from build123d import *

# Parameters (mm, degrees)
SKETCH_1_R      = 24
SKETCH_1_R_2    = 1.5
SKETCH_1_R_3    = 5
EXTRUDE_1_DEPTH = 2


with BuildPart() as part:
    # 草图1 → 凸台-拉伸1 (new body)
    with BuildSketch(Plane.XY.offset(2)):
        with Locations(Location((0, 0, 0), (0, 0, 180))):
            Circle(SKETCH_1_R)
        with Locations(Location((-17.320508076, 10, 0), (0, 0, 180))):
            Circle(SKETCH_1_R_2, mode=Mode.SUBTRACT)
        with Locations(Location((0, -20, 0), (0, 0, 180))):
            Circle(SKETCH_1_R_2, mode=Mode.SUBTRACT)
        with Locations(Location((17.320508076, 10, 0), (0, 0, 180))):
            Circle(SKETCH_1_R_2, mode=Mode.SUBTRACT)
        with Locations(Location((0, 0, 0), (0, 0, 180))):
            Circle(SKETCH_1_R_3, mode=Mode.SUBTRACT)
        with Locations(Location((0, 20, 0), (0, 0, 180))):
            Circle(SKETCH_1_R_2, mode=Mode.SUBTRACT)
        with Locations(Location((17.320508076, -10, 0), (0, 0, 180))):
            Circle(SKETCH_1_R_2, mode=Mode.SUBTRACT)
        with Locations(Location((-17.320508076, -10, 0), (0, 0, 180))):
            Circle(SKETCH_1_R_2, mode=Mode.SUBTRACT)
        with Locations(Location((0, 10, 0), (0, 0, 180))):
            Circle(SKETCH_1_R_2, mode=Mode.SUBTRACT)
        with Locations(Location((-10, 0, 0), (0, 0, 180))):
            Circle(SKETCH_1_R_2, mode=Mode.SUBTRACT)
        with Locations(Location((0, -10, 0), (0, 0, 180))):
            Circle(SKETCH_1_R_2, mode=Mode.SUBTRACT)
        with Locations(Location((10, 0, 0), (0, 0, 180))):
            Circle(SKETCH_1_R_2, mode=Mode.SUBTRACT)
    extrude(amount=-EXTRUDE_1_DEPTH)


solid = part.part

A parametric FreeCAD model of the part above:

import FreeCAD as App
import Part
import Sketcher

doc = App.newDocument("Part")
body = doc.addObject("PartDesign::Body", "Body")

# Sketch on XY plane
sketch1 = body.newObject("Sketcher::SketchObject", "Sketch")
sketch1.AttachmentSupport = (doc.getObject("XY_Plane"), [""])
sketch1.MapMode = "FlatFace"
sketch1.AttachmentOffset = App.Placement(App.Vector(0, 0, 2), App.Rotation())
sketch1.addGeometry([
    Part.Circle(App.Vector(0, 0, 0), App.Vector(0, 0, 1), 24),  # 0
    Part.Circle(App.Vector(17.3, 10, 0), App.Vector(0, 0, 1), 1.5),  # 1
    Part.Circle(App.Vector(0, 20, 0), App.Vector(0, 0, 1), 1.5),  # 2
    Part.Circle(App.Vector(0, 10, 0), App.Vector(0, 0, 1), 1.5),  # 3
    Part.Circle(App.Vector(-17.3, 10, 0), App.Vector(0, 0, 1), 1.5),  # 4
    Part.Circle(App.Vector(10, 0, 0), App.Vector(0, 0, 1), 1.5),  # 5
    Part.Circle(App.Vector(17.3, -10, 0), App.Vector(0, 0, 1), 1.5),  # 6
    Part.Circle(App.Vector(0, 0, 0), App.Vector(0, 0, 1), 5),  # 7
    Part.Circle(App.Vector(0, -10, 0), App.Vector(0, 0, 1), 1.5),  # 8
    Part.Circle(App.Vector(-10, 0, 0), App.Vector(0, 0, 1), 1.5),  # 9
    Part.Circle(App.Vector(-17.3, -10, 0), App.Vector(0, 0, 1), 1.5),  # 10
    Part.Circle(App.Vector(0, -20, 0), App.Vector(0, 0, 1), 1.5),  # 11
], False)
sketch1.addConstraint([
    Sketcher.Constraint("Coincident", 0, 3, -1, 1),
    Sketcher.Constraint("Coincident", 7, 3, -1, 1),
    Sketcher.Constraint("Equal", 1, 2),
    Sketcher.Constraint("Equal", 2, 3),
    Sketcher.Constraint("Equal", 3, 4),
    Sketcher.Constraint("Equal", 4, 5),
    Sketcher.Constraint("Equal", 5, 6),
    Sketcher.Constraint("Equal", 6, 8),
    Sketcher.Constraint("Equal", 8, 9),
    Sketcher.Constraint("Equal", 9, 10),
    Sketcher.Constraint("Equal", 10, 11),
    Sketcher.Constraint("Symmetric", 4, 3, 6, 3, -1, 1),
    Sketcher.Constraint("Symmetric", 3, 3, 8, 3, -1, 1),
    Sketcher.Constraint("Symmetric", 5, 3, 9, 3, -1, 1),
    Sketcher.Constraint("Symmetric", 1, 3, 10, 3, -1, 1),
    Sketcher.Constraint("Symmetric", 2, 3, 11, 3, -1, 1),
    Sketcher.Constraint("Symmetric", 1, 3, 4, 3, -2),
    Sketcher.Constraint("PointOnObject", 2, 3, -2),
    Sketcher.Constraint("PointOnObject", 3, 3, -2),
    Sketcher.Constraint("PointOnObject", 5, 3, -1),
    Sketcher.Constraint("Horizontal", 1, 3, 3, 3),
    Sketcher.Constraint("Diameter", 0, 48.0),
    Sketcher.Constraint("Diameter", 1, 3.0),
    Sketcher.Constraint("Diameter", 7, 10.0),
    Sketcher.Constraint("DistanceY", -1, 1, 1, 3, 10.0),
    Sketcher.Constraint("DistanceY", -1, 1, 2, 3, 20.0),
    Sketcher.Constraint("DistanceX", -1, 1, 5, 3, 10.0),
    Sketcher.Constraint("DistanceX", -1, 1, 1, 3, 17.320508),
])
pad1 = body.newObject("PartDesign::Pad", "Pad")
pad1.Profile = sketch1
pad1.Length = 2
pad1.Reversed = True

doc.recompute()
